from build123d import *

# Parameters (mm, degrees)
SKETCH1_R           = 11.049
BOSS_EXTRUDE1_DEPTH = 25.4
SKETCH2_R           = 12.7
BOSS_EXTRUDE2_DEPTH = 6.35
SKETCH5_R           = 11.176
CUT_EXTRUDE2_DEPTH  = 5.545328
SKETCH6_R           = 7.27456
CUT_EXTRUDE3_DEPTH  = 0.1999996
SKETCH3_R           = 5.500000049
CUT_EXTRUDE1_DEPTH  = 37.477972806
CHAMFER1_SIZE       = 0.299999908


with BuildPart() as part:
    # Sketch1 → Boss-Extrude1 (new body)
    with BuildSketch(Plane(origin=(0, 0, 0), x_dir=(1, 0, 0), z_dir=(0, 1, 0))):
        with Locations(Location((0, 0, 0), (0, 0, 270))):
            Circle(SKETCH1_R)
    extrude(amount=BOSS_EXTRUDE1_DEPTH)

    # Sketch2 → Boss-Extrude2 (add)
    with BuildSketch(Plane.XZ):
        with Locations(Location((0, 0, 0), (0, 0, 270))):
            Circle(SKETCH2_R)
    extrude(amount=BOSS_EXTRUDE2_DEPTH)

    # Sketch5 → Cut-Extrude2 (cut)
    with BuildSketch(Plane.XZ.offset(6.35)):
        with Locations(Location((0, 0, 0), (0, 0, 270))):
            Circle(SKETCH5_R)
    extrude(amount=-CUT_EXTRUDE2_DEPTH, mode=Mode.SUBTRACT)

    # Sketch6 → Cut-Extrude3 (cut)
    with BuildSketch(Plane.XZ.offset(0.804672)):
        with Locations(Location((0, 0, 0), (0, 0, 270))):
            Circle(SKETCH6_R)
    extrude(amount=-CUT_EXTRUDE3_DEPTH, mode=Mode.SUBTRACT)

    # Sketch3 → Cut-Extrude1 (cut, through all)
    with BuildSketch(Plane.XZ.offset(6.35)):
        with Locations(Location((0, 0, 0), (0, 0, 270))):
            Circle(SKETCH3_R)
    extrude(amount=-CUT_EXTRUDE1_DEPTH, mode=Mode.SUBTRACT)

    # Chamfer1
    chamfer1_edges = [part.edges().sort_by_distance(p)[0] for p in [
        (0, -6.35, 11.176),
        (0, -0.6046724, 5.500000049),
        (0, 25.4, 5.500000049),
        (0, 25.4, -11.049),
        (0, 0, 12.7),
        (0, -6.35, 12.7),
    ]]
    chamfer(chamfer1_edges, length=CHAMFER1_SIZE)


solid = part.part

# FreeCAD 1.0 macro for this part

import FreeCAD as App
import Part
import Sketcher
from FreeCAD import Vector
Q = App.Units.Quantity


def edges_at(feature, points):
    """Names of the edges that pass closest to the given points."""
    edges = feature.Shape.Edges
    near = lambda p: min(range(len(edges)), key=lambda i: edges[i].distToShape(Part.Vertex(*p))[0])
    return sorted({f"Edge{near(p) + 1}" for p in points})

doc = App.newDocument("Part")
body = doc.addObject("PartDesign::Body", "Body")

# Sketch on XZ plane
sketch1 = body.newObject("Sketcher::SketchObject", "Sketch")
sketch1.AttachmentSupport = (doc.getObject("XZ_Plane"), [""])
sketch1.MapMode = "FlatFace"
sketch1.addGeometry(Part.Circle(Vector(0, 0, 0), Vector(0, 0, 1), 11.049), False)
sketch1.addConstraint([
    Sketcher.Constraint("Coincident", 0, 3, -1, 1),
    Sketcher.Constraint("Diameter", 0, Q("0.87 in")),
])
pad1 = body.newObject("PartDesign::Pad", "Pad")
pad1.Profile = sketch1
pad1.Length = Q("1 in")
pad1.Reversed = True

# Sketch on XZ plane
sketch2 = body.newObject("Sketcher::SketchObject", "Sketch001")
sketch2.AttachmentSupport = (doc.getObject("XZ_Plane"), [""])
sketch2.MapMode = "FlatFace"
sketch2.addGeometry(Part.Circle(Vector(0, 0, 0), Vector(0, 0, 1), 12.7), False)
sketch2.addConstraint([
    Sketcher.Constraint("Coincident", 0, 3, -1, 1),
    Sketcher.Constraint("Diameter", 0, Q("1 in")),
])
pad2 = body.newObject("PartDesign::Pad", "Pad001")
pad2.Profile = sketch2
pad2.Length = Q("0.25 in")

# Sketch on XZ plane
sketch3 = body.newObject("Sketcher::SketchObject", "Sketch002")
sketch3.AttachmentSupport = (doc.getObject("XZ_Plane"), [""])
sketch3.MapMode = "FlatFace"
sketch3.AttachmentOffset = App.Placement(Vector(0, 0, 0.25 * 25.4), App.Rotation())
sketch3.addGeometry(Part.Circle(Vector(0, 0, 0), Vector(0, 0, 1), 11.176), False)
sketch3.addConstraint([
    Sketcher.Constraint("Coincident", 0, 3, -1, 1),
    Sketcher.Constraint("Diameter", 0, Q("0.88 in")),
])
pocket1 = body.newObject("PartDesign::Pocket", "Pocket")
pocket1.Profile = sketch3
pocket1.Length = 5.545328

# Sketch on XZ plane
sketch4 = body.newObject("Sketcher::SketchObject", "Sketch003")
sketch4.AttachmentSupport = (doc.getObject("XZ_Plane"), [""])
sketch4.MapMode = "FlatFace"
sketch4.AttachmentOffset = App.Placement(Vector(0, 0, 0.804672), App.Rotation())
sketch4.addGeometry(Part.Circle(Vector(0, 0, 0), Vector(0, 0, 1), 7.27456), False)
sketch4.addConstraint([
    Sketcher.Constraint("Coincident", 0, 3, -1, 1),
    Sketcher.Constraint("Diameter", 0, Q("0.5728 in")),
])
pocket2 = body.newObject("PartDesign::Pocket", "Pocket001")
pocket2.Profile = sketch4
pocket2.Length = 0.2

# Sketch on XZ plane
sketch5 = body.newObject("Sketcher::SketchObject", "Sketch004")
sketch5.AttachmentSupport = (doc.getObject("XZ_Plane"), [""])
sketch5.MapMode = "FlatFace"
sketch5.AttachmentOffset = App.Placement(Vector(0, 0, 0.25 * 25.4), App.Rotation())
sketch5.addGeometry(Part.Circle(Vector(0, 0, 0), Vector(0, 0, 1), 5.5), False)
sketch5.addConstraint([
    Sketcher.Constraint("Coincident", 0, 3, -1, 1),
    Sketcher.Constraint("Diameter", 0, Q("11 mm")),
])
pocket3 = body.newObject("PartDesign::Pocket", "Pocket002")
pocket3.Profile = sketch5
pocket3.Type = "ThroughAll"
doc.recompute()

chamfer = body.newObject("PartDesign::Chamfer", "Chamfer")
chamfer.Base = (pocket3, edges_at(pocket3, [
    (0, -6.35, 11.176),
    (0, -0.605, 5.5),
    (0, 25.4, 5.5),
    (0, 25.4, -11.049),
    (0, 0, 12.7),
    (0, -6.35, 12.7),
]))
chamfer.Size = 0.3

doc.recompute()
